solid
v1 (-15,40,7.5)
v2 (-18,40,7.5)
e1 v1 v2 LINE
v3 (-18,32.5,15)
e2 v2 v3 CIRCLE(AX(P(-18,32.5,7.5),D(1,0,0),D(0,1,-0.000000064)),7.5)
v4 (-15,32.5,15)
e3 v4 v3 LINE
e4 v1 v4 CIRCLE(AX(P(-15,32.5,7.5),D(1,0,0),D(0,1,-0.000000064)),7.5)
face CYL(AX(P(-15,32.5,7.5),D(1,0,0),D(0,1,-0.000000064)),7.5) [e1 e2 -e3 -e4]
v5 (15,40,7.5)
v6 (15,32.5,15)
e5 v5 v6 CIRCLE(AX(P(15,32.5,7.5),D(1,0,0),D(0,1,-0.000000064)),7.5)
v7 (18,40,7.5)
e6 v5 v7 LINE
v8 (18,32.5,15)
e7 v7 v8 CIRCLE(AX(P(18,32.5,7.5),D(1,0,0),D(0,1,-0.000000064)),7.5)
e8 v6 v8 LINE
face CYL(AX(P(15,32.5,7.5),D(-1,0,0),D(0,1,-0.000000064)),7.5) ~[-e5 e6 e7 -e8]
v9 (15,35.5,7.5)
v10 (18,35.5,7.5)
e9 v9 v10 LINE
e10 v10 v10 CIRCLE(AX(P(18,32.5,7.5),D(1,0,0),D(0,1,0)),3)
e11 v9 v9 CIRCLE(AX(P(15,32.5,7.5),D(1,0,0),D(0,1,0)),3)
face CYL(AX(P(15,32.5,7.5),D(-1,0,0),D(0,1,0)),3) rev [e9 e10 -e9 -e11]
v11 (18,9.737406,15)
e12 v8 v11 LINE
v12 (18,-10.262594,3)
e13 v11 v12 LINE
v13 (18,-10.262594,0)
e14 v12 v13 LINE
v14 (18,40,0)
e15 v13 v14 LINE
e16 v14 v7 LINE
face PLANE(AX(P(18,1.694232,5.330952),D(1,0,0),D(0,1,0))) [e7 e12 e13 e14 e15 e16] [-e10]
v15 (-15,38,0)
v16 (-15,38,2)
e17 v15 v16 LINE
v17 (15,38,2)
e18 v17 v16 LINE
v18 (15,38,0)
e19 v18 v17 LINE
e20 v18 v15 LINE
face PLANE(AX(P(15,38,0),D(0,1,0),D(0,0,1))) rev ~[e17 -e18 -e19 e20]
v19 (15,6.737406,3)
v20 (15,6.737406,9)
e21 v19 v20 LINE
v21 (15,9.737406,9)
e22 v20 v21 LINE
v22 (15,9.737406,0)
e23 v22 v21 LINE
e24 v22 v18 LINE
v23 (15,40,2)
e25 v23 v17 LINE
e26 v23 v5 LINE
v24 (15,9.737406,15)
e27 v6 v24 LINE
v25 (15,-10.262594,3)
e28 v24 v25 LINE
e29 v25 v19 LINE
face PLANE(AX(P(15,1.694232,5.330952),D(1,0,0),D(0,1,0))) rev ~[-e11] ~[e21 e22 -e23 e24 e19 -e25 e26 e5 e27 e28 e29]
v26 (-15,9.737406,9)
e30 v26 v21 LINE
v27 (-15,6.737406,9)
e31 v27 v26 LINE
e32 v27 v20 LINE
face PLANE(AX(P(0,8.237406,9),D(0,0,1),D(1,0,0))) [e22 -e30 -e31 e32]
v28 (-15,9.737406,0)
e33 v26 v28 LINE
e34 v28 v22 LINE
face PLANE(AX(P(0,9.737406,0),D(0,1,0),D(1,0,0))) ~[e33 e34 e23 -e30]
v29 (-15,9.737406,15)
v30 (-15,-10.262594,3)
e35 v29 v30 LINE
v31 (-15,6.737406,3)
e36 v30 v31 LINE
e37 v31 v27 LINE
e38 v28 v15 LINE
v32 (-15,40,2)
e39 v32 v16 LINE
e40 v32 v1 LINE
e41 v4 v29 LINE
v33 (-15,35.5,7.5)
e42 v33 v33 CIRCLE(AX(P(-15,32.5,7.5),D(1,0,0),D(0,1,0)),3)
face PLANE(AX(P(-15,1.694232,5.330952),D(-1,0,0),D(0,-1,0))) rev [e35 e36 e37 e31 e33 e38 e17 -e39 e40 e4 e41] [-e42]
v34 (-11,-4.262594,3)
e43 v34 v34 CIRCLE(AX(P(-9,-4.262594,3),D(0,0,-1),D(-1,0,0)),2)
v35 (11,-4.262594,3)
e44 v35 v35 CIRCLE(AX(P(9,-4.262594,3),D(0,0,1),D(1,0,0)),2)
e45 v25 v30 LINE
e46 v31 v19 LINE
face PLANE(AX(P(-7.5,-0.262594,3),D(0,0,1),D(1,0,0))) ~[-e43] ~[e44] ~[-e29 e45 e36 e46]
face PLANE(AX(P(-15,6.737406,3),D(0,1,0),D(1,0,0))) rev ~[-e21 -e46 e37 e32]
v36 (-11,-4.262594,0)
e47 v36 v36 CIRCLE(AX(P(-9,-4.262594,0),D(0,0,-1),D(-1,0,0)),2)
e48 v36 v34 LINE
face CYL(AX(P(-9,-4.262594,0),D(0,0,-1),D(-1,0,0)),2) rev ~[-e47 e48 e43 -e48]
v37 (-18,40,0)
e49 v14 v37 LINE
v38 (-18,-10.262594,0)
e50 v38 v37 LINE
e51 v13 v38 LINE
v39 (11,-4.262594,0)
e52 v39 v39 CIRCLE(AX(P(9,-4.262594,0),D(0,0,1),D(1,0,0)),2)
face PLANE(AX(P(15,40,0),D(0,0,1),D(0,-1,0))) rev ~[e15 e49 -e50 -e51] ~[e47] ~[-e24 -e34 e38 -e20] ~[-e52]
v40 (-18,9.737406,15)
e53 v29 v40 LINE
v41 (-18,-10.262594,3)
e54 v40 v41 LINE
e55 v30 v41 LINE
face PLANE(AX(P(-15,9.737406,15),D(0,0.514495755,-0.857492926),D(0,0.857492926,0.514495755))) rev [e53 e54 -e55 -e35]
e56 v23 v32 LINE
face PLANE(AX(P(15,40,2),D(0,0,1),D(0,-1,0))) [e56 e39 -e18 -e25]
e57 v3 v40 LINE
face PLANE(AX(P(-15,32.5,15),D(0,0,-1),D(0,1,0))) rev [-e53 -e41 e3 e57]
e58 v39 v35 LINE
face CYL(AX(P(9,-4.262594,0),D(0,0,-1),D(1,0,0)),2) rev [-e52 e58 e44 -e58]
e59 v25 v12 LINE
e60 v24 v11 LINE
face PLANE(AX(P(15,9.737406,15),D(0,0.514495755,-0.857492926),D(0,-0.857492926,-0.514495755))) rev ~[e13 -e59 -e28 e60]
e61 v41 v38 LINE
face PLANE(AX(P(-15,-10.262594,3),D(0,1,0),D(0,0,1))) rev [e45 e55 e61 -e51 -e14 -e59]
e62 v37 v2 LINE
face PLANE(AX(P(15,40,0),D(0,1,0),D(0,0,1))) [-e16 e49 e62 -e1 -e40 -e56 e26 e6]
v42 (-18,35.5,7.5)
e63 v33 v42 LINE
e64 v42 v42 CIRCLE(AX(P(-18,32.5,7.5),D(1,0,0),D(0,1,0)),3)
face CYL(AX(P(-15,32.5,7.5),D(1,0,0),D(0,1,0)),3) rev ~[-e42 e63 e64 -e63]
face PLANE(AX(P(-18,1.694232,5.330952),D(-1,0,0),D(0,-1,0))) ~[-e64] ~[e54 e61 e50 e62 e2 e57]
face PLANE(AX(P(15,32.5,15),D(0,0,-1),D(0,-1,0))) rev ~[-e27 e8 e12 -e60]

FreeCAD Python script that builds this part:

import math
import FreeCAD as App
import Part
import Sketcher
from FreeCAD import Vector

doc = App.newDocument("Part")
body = doc.addObject("PartDesign::Body", "Body")

# Sketch on XY plane
sketch1 = body.newObject("Sketcher::SketchObject", "Sketch")
sketch1.AttachmentSupport = (doc.getObject("XY_Plane"), [""])
sketch1.MapMode = "FlatFace"
sketch1.addGeometry([
    Part.LineSegment(Vector(0, 9.7, 0), Vector(0, -10.3, 0)),  # 0
    Part.LineSegment(Vector(0, -10.3, 0), Vector(15, -10.3, 0)),  # 1
    Part.LineSegment(Vector(15, -10.3, 0), Vector(15, 9.7, 0)),  # 2
    Part.LineSegment(Vector(15, 9.7, 0), Vector(0, 9.7, 0)),  # 3
    Part.Circle(Vector(9, -4.3, 0), Vector(0, 0, 1), 2),  # 4
], False)
sketch1.addConstraint([
    Sketcher.Constraint("Coincident", 0, 2, 1, 1),
    Sketcher.Constraint("Coincident", 1, 2, 2, 1),
    Sketcher.Constraint("Coincident", 2, 2, 3, 1),
    Sketcher.Constraint("Coincident", 3, 2, 0, 1),
    Sketcher.Constraint("Vertical", 0),
    Sketcher.Constraint("Horizontal", 1),
    Sketcher.Constraint("Vertical", 2),
    Sketcher.Constraint("Horizontal", 3),
    Sketcher.Constraint("PointOnObject", 0, 2, -2),
    Sketcher.Constraint("Diameter", 4, 4.0),
    Sketcher.Constraint("DistanceX", 1, 1, 1, 2, 15.0),
    Sketcher.Constraint("DistanceY", 0, 2, 0, 1, 20.0),
    Sketcher.Constraint("DistanceX", -1, 1, 4, 3, 9.0),
    Sketcher.Constraint("DistanceY", 0, 2, 4, 3, 6.0),
    Sketcher.Constraint("DistanceY", 4, 3, -1, 1, 4.262594),
])
pad1 = body.newObject("PartDesign::Pad", "Pad")
pad1.Profile = sketch1
pad1.Length = 3

# Sketch on YZ plane
sketch2 = body.newObject("Sketcher::SketchObject", "Sketch001")
sketch2.AttachmentSupport = (doc.getObject("YZ_Plane"), [""])
sketch2.MapMode = "FlatFace"
sketch2.AttachmentOffset = App.Placement(Vector(0, 0, 15), App.Rotation())
sketch2.addGeometry([
    Part.LineSegment(Vector(-10.3, 0, 0), Vector(40, 0, 0)),  # 0
    Part.LineSegment(Vector(40, 0, 0), Vector(40, 7.5, 0)),  # 1
    Part.ArcOfCircle(Part.Circle(Vector(32.5, 7.5, 0), Vector(0, 0, 1), 7.5), math.radians(0), math.radians(90)),  # 2
    Part.LineSegment(Vector(32.5, 15, 0), Vector(9.7, 15, 0)),  # 3
    Part.LineSegment(Vector(9.7, 15, 0), Vector(-10.3, 3, 0)),  # 4
    Part.LineSegment(Vector(-10.3, 3, 0), Vector(-10.3, 0, 0)),  # 5
    Part.Circle(Vector(32.5, 7.5, 0), Vector(0, 0, 1), 3),  # 6
], False)
sketch2.addConstraint([
    Sketcher.Constraint("Coincident", 0, 2, 1, 1),
    Sketcher.Constraint("Tangent", 1, 2, 2, 1),
    Sketcher.Constraint("Tangent", 2, 2, 3, 1),
    Sketcher.Constraint("Coincident", 3, 2, 4, 1),
    Sketcher.Constraint("Coincident", 4, 2, 5, 1),
    Sketcher.Constraint("Coincident", 5, 2, 0, 1),
    Sketcher.Constraint("Horizontal", 0),
    Sketcher.Constraint("Vertical", 1),
    Sketcher.Constraint("Horizontal", 3),
    Sketcher.Constraint("Vertical", 5),
    Sketcher.Constraint("Coincident", 6, 3, 2, 3),
    Sketcher.Constraint("PointOnObject", 0, 2, -1),
    Sketcher.Constraint("Diameter", 6, 6.0),
    Sketcher.Constraint("Radius", 2, 7.5),
    Sketcher.Constraint("DistanceY", 5, 2, 5, 1, 3.0),
    Sketcher.Constraint("DistanceY", 1, 1, 1, 2, 7.5),
    Sketcher.Constraint("DistanceX", -1, 1, 0, 2, 40.0),
    Sketcher.Constraint("DistanceX", 4, 2, 3, 2, 20.0),
    Sketcher.Constraint("DistanceX", 0, 1, 0, 2, 50.262594),
])
pad2 = body.newObject("PartDesign::Pad", "Pad001")
pad2.Profile = sketch2
pad2.Length = 3
body2 = doc.addObject("PartDesign::Body", "Body001")
doc.recompute()

body2.BaseFeature = body
doc.recompute()

mirroring = doc.addObject("Part::Mirroring", "Mirroring")
mirroring.Source = body
mirroring.Base = Vector(0, 0, 0)
mirroring.Normal = Vector(1, 0, 0)
body3 = doc.addObject("PartDesign::Body", "Body002")
body3.BaseFeature = mirroring
boolean = body2.newObject("PartDesign::Boolean", "Boolean")
boolean.Type = "Fuse"
boolean.addObjects([body3])
doc.recompute()

# Sketch on XY plane
sketch3 = body2.newObject("Sketcher::SketchObject", "Sketch002")
sketch3.AttachmentSupport = (doc.getObject("XY_Plane001"), [""])
sketch3.MapMode = "FlatFace"
sketch3.AttachmentOffset = App.Placement(Vector(0, 0, 3), App.Rotation())
sketch3.addGeometry([
    Part.LineSegment(Vector(-15, 9.7, 0), Vector(-15, 6.7, 0)),
    Part.LineSegment(Vector(-15, 6.7, 0), Vector(15, 6.7, 0)),
    Part.LineSegment(Vector(15, 6.7, 0), Vector(15, 9.7, 0)),
    Part.LineSegment(Vector(15, 9.7, 0), Vector(-15, 9.7, 0)),
], False)
sketch3.addConstraint([
    Sketcher.Constraint("Coincident", 0, 2, 1, 1),
    Sketcher.Constraint("Coincident", 1, 2, 2, 1),
    Sketcher.Constraint("Coincident", 2, 2, 3, 1),
    Sketcher.Constraint("Coincident", 3, 2, 0, 1),
    Sketcher.Constraint("Vertical", 0),
    Sketcher.Constraint("Horizontal", 1),
    Sketcher.Constraint("Vertical", 2),
    Sketcher.Constraint("Horizontal", 3),
    Sketcher.Constraint("DistanceX", 1, 1, 1, 2, 30.0),
    Sketcher.Constraint("DistanceY", 0, 2, 0, 1, 3.0),
    Sketcher.Constraint("DistanceX", 0, 2, -1, 1, 15.0),
    Sketcher.Constraint("DistanceY", -1, 1, 0, 2, 6.737406),
])
pad3 = body2.newObject("PartDesign::Pad", "Pad002")
pad3.Profile = sketch3
pad3.Length = 6

# Sketch on YZ plane
sketch4 = body2.newObject("Sketcher::SketchObject", "Sketch003")
sketch4.AttachmentSupport = (doc.getObject("YZ_Plane001"), [""])
sketch4.MapMode = "FlatFace"
sketch4.AttachmentOffset = App.Placement(Vector(0, 0, 15), App.Rotation())
sketch4.addGeometry([
    Part.LineSegment(Vector(40, 2, 0), Vector(40, 0, 0)),
    Part.LineSegment(Vector(40, 0, 0), Vector(38, 0, 0)),
    Part.LineSegment(Vector(38, 0, 0), Vector(38, 2, 0)),
    Part.LineSegment(Vector(38, 2, 0), Vector(40, 2, 0)),
], False)
sketch4.addConstraint([
    Sketcher.Constraint("Coincident", 0, 2, 1, 1),
    Sketcher.Constraint("Coincident", 1, 2, 2, 1),
    Sketcher.Constraint("Coincident", 2, 2, 3, 1),
    Sketcher.Constraint("Coincident", 3, 2, 0, 1),
    Sketcher.Constraint("Vertical", 0),
    Sketcher.Constraint("Horizontal", 1),
    Sketcher.Constraint("Vertical", 2),
    Sketcher.Constraint("Horizontal", 3),
    Sketcher.Constraint("PointOnObject", 0, 2, -1),
    Sketcher.Constraint("Equal", 3, 0),
    Sketcher.Constraint("DistanceX", 1, 2, 1, 1, 2.0),
    Sketcher.Constraint("DistanceX", -1, 1, 0, 2, 40.0),
])
pad4 = body2.newObject("PartDesign::Pad", "Pad003")
pad4.Profile = sketch4
pad4.Type = "UpToLast"
pad4.Reversed = True
mirroring.Visibility = False

doc.recompute()
